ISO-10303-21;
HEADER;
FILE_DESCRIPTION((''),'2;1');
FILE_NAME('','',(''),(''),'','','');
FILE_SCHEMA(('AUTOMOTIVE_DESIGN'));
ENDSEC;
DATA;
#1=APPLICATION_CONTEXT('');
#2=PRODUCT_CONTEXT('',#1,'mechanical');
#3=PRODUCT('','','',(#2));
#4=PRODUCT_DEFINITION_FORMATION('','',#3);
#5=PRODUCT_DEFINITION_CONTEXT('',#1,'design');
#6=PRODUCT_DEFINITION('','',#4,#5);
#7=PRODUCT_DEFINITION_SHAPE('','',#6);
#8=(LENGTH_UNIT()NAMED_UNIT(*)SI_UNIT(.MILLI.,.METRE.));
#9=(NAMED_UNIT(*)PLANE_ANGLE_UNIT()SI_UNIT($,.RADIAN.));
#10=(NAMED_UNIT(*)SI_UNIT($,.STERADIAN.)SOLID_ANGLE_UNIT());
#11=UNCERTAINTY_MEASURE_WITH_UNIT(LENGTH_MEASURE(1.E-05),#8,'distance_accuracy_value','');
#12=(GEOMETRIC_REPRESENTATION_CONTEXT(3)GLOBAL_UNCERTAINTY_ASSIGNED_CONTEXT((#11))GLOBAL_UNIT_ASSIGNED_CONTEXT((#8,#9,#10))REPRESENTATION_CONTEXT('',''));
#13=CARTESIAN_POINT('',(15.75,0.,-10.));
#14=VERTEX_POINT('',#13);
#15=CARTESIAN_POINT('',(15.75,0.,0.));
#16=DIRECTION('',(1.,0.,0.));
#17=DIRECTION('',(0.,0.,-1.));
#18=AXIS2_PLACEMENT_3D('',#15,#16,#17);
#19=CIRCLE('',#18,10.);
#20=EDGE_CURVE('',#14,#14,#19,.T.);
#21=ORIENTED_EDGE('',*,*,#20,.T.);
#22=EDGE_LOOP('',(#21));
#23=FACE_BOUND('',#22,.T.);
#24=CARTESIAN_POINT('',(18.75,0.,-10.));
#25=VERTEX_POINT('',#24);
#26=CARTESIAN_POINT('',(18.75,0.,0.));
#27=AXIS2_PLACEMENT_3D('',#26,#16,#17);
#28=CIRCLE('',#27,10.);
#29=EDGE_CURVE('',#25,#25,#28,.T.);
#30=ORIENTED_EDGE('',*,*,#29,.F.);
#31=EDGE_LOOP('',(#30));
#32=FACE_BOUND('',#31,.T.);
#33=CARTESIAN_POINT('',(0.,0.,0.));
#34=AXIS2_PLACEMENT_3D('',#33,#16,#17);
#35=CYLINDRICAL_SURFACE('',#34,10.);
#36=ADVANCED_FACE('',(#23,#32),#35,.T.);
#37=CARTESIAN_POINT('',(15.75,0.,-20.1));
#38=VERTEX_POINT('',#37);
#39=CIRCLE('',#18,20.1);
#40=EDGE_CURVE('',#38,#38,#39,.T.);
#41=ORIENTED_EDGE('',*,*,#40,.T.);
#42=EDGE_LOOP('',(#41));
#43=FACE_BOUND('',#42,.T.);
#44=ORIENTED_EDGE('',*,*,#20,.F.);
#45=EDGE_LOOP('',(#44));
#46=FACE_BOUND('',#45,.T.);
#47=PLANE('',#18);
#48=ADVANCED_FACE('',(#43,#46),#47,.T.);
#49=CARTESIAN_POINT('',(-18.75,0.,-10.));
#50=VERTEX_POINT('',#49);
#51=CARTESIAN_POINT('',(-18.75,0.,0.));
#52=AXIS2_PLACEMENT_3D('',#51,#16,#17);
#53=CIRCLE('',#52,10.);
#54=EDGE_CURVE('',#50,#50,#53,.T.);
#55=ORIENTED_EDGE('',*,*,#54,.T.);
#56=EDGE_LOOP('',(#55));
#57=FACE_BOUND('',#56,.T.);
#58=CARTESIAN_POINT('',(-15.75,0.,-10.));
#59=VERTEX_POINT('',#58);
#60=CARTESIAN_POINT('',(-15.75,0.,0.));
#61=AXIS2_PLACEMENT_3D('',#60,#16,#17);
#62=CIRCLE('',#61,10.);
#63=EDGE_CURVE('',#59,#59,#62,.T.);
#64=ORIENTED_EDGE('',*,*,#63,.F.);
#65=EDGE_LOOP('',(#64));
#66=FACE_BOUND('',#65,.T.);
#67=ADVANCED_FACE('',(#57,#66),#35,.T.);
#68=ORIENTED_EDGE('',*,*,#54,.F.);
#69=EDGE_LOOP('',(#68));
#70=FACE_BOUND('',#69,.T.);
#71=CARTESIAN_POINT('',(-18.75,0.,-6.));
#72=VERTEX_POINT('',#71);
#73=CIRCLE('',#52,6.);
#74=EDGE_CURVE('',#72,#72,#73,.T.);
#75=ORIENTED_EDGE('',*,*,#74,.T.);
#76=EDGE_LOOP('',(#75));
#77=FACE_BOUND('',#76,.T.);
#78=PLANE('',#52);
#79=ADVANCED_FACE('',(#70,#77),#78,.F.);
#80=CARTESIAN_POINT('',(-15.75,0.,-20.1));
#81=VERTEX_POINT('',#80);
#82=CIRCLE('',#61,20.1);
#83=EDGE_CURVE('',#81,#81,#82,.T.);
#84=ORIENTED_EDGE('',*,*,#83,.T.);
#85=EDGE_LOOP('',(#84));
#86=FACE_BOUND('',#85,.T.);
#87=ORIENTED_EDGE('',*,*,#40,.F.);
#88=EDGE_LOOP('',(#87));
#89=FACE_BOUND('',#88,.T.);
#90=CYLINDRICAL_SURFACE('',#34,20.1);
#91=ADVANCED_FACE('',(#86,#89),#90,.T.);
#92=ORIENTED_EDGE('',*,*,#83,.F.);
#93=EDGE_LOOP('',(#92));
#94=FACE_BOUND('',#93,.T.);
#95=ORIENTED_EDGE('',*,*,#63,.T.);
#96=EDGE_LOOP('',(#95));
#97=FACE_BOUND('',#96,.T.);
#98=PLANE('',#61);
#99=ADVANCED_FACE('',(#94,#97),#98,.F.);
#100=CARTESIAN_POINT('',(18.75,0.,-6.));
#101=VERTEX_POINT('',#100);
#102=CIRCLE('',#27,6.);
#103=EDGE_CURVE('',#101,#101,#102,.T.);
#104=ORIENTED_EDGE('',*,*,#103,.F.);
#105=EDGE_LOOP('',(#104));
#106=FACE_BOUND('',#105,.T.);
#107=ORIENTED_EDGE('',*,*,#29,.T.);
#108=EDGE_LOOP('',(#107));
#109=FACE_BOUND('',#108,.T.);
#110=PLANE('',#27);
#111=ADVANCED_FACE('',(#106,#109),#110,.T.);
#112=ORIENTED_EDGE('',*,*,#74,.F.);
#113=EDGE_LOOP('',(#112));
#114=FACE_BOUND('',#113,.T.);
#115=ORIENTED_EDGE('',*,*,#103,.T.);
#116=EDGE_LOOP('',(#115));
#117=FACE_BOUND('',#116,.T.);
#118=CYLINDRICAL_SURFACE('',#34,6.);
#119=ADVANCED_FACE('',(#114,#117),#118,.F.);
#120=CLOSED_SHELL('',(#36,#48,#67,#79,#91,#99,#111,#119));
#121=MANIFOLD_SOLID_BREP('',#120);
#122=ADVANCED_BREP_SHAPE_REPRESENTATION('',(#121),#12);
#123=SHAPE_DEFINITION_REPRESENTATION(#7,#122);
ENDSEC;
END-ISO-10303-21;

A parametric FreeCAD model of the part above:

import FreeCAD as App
import Part
import Sketcher


def add_polygon(sketch, points):
    """Adds a closed chain of lines whose ends are joined by coincident constraints."""
    first, n = sketch.GeometryCount, len(points)
    for a, b in zip(points, points[1:] + points[:1]):
        sketch.addGeometry(Part.LineSegment(App.Vector(*a, 0), App.Vector(*b, 0)), False)
    for i in range(n):
        sketch.addConstraint(Sketcher.Constraint("Coincident", first + i, 2, first + (i + 1) % n, 1))

doc = App.newDocument("Part")
body = doc.addObject("PartDesign::Body", "Body")

# Sketch on XY plane
sketch1 = body.newObject("Sketcher::SketchObject", "Sketch")
sketch1.AttachmentSupport = (doc.getObject("XY_Plane"), [""])
sketch1.MapMode = "FlatFace"
add_polygon(sketch1, [(-15.8, 20.1), (-15.8, 10), (-18.8, 10), (-18.8, 6), (18.8, 6), (18.8, 10), (15.8, 10), (15.8, 20.1)])  # lines 0-7
sketch1.addConstraint(Sketcher.Constraint("Vertical", 0))
sketch1.addConstraint(Sketcher.Constraint("Horizontal", 1))
sketch1.addConstraint(Sketcher.Constraint("Vertical", 2))
sketch1.addConstraint(Sketcher.Constraint("Horizontal", 3))
sketch1.addConstraint(Sketcher.Constraint("Vertical", 4))
sketch1.addConstraint(Sketcher.Constraint("Horizontal", 5))
sketch1.addConstraint(Sketcher.Constraint("Vertical", 6))
sketch1.addConstraint(Sketcher.Constraint("Horizontal", 7))
sketch1.addConstraint(Sketcher.Constraint("Symmetric", 1, 2, 4, 2, -2))
sketch1.addConstraint(Sketcher.Constraint("Equal", 1, 5))
sketch1.addConstraint(Sketcher.Constraint("DistanceX", 1, 2, 1, 1, 3.0))
sketch1.addConstraint(Sketcher.Constraint("DistanceY", 2, 2, 2, 1, 4.0))
sketch1.addConstraint(Sketcher.Constraint("DistanceX", 3, 1, 3, 2, 37.5))
sketch1.addConstraint(Sketcher.Constraint("DistanceY", 0, 2, 0, 1, 10.1))
sketch1.addConstraint(Sketcher.Constraint("DistanceY", -1, 1, 0, 2, 10.0))
revolution = body.newObject("PartDesign::Revolution", "Revolution")
revolution.Profile = sketch1
revolution.ReferenceAxis = (sketch1, ["H_Axis"])
revolution.Angle = 360

doc.recompute()
